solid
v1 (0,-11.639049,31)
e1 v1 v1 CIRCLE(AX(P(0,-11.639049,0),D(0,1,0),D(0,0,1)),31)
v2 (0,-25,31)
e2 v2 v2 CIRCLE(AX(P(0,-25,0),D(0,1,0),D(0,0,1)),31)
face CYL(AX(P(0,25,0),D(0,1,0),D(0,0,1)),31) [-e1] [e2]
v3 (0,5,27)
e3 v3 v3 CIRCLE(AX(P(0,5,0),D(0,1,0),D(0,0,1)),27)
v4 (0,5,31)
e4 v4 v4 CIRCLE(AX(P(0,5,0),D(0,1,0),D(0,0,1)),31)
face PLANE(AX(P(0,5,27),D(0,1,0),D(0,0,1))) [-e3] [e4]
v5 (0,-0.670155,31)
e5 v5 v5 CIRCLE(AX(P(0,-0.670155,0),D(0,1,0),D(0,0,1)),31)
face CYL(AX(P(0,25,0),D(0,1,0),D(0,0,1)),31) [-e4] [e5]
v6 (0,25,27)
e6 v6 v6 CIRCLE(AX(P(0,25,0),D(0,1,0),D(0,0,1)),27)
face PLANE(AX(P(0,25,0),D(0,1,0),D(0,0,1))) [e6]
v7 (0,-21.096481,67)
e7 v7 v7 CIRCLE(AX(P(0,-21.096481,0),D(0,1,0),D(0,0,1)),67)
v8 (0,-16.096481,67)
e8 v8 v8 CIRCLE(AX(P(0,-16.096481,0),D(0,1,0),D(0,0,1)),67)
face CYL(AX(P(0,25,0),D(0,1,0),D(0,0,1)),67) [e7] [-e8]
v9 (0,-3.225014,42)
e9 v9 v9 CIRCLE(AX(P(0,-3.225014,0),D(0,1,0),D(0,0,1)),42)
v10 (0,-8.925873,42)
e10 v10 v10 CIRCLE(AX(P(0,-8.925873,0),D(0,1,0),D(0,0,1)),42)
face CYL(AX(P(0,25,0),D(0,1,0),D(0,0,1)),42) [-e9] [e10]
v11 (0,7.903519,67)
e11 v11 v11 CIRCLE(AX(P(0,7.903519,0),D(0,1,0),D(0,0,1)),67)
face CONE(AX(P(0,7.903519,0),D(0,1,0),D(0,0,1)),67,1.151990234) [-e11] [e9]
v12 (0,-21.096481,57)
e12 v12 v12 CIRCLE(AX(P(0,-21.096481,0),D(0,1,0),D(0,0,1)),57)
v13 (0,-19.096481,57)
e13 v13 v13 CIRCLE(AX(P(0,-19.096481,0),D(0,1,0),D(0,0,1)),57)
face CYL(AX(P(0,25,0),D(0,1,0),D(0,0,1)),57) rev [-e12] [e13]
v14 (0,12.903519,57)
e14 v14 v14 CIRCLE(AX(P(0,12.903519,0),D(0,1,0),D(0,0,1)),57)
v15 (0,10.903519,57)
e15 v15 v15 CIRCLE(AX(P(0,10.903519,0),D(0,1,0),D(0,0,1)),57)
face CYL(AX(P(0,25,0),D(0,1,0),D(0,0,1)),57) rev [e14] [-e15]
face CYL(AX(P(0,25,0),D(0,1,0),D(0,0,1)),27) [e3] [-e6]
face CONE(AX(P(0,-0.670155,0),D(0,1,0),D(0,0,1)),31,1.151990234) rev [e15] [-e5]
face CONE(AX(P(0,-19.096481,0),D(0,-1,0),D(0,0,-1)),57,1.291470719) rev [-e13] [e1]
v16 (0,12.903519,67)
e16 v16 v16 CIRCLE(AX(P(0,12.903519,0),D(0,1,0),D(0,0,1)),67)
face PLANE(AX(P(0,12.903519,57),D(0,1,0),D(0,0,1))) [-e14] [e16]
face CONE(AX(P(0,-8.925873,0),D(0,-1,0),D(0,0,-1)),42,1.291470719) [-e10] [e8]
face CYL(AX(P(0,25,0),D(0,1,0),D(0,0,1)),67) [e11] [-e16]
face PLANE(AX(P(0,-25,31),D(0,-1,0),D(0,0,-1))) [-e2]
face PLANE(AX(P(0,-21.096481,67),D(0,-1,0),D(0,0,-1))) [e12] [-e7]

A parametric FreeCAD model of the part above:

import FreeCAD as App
import Part
import Sketcher

V = App.Vector
Q = App.Units.Quantity


def add_polygon(sketch, points):
    """Adds a closed chain of lines whose ends are joined by coincident constraints."""
    first, n = sketch.GeometryCount, len(points)
    for a, b in zip(points, points[1:] + points[:1]):
        sketch.addGeometry(Part.LineSegment(App.Vector(*a, 0), App.Vector(*b, 0)), False)
    for i in range(n):
        sketch.addConstraint(Sketcher.Constraint("Coincident", first + i, 2, first + (i + 1) % n, 1))

doc = App.newDocument("Part")
body = doc.addObject("PartDesign::Body", "Body")

sketch1 = body.newObject("Sketcher::SketchObject", "Sketch")
sketch1.AttachmentSupport = (doc.getObject("YZ_Plane"), [""])
sketch1.MapMode = "FlatFace"
add_polygon(sketch1, [(-25, 0), (25, 0), (25, 27), (5, 27), (5, 31), (-0.7, 31), (10.9, 57), (12.9, 57), (12.9, 67), (7.9, 67), (-3.2, 42), (-8.9, 42), (-16.1, 67), (-21.1, 67), (-21.1, 57), (-19.1, 57), (-11.6, 31), (-25, 31)])
sketch1.addConstraint([
    Sketcher.Constraint("Horizontal", 0),
    Sketcher.Constraint("Vertical", 1),
    Sketcher.Constraint("Horizontal", 2),
    Sketcher.Constraint("Vertical", 3),
    Sketcher.Constraint("Horizontal", 4),
    Sketcher.Constraint("Horizontal", 6),
    Sketcher.Constraint("Vertical", 7),
    Sketcher.Constraint("Horizontal", 8),
    Sketcher.Constraint("Horizontal", 10),
    Sketcher.Constraint("Horizontal", 12),
    Sketcher.Constraint("Vertical", 13),
    Sketcher.Constraint("Horizontal", 14),
    Sketcher.Constraint("Horizontal", 16),
    Sketcher.Constraint("Vertical", 17),
    Sketcher.Constraint("Symmetric", 0, 2, 17, 2, -1, 1),
    Sketcher.Constraint("Parallel", 5, 9),
    Sketcher.Constraint("Parallel", 11, 15),
    Sketcher.Constraint("Horizontal", 8, 2, 11, 2),
    Sketcher.Constraint("Horizontal", 6, 2, 13, 2),
    Sketcher.Constraint("Horizontal", 4, 2, 15, 2),
    Sketcher.Constraint("Equal", 8, 12),
    Sketcher.Constraint("Equal", 6, 14),
    Sketcher.Constraint("DistanceX", 0, 1, 0, 2, Q("50 mm")),
    Sketcher.Constraint("DistanceX", 2, 2, 2, 1, Q("20 mm")),
    Sketcher.Constraint("DistanceX", 6, 1, 6, 2, Q("2 mm")),
    Sketcher.Constraint("DistanceX", 8, 2, 8, 1, Q("5 mm")),
    Sketcher.Constraint("DistanceY", 1, 1, 1, 2, Q("27 mm")),
    Sketcher.Constraint("DistanceY", 3, 1, 3, 2, Q("4 mm")),
    Sketcher.Constraint("DistanceY", 7, 1, 7, 2, Q("10 mm")),
    Sketcher.Constraint("DistanceY", -1, 1, 5, 2, Q("57 mm")),
    Sketcher.Constraint("DistanceY", -1, 1, 9, 2, Q("42 mm")),
    Sketcher.Constraint("DistanceX", 11, 2, 8, 2, Q("24 mm")),
    Sketcher.Constraint("DistanceX", 10, 2, 10, 1, Q("5.70086 mm")),
    Sketcher.Constraint("DistanceX", 16, 2, 16, 1, Q("13.360951 mm")),
    Sketcher.Constraint("Distance", 5, Q("28.459619 mm")),
])
revolution = body.newObject("PartDesign::Revolution", "Revolution")
revolution.Profile = sketch1
revolution.ReferenceAxis = (sketch1, ["H_Axis"])
revolution.Angle = 360

doc.recompute()
